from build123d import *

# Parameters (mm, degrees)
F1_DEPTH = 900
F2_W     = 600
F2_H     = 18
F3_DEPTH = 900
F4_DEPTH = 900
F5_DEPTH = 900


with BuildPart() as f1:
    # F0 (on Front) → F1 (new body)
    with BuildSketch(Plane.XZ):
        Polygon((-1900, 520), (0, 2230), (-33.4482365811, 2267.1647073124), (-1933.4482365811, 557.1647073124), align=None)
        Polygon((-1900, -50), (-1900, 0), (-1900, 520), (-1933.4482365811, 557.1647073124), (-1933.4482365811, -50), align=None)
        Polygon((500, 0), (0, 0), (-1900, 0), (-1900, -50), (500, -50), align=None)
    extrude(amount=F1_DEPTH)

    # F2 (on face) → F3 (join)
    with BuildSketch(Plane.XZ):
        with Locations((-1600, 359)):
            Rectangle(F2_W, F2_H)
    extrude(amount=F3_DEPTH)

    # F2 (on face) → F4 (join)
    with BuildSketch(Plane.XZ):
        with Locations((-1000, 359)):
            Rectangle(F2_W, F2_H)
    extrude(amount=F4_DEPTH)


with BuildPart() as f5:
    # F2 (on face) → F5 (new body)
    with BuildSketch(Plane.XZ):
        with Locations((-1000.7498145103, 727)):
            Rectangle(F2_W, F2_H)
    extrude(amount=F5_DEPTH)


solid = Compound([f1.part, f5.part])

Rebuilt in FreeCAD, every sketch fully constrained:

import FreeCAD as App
import Part
import Sketcher

V = App.Vector

doc = App.newDocument("Part")
body = doc.addObject("PartDesign::Body", "Body")

sketch1 = doc.addObject("Sketcher::SketchObject", "Sketch")
body.addObject(sketch1)
sketch1.AttachmentSupport = (doc.XZ_Plane, [""])
sketch1.MapMode = "FlatFace"
sketch1.addGeometry([
    Part.LineSegment(V(-1900, 520, 0), V(0, 2230, 0)),
    Part.LineSegment(V(0, 2230, 0), V(-33, 2267, 0)),
    Part.LineSegment(V(-33, 2267, 0), V(-1933, 557, 0)),
    Part.LineSegment(V(-1933, 557, 0), V(-1933, -50, 0)),
    Part.LineSegment(V(-1933, -50, 0), V(500, -50, 0)),
    Part.LineSegment(V(500, -50, 0), V(500, 0, 0)),
    Part.LineSegment(V(500, 0, 0), V(-1900, 0, 0)),
    Part.LineSegment(V(-1900, 0, 0), V(-1900, 520, 0)),
], False)
sketch1.addConstraint([
    Sketcher.Constraint("Coincident", 0, 2, 1, 1),
    Sketcher.Constraint("Coincident", 1, 2, 2, 1),
    Sketcher.Constraint("Coincident", 2, 2, 3, 1),
    Sketcher.Constraint("Coincident", 3, 2, 4, 1),
    Sketcher.Constraint("Coincident", 4, 2, 5, 1),
    Sketcher.Constraint("Coincident", 5, 2, 6, 1),
    Sketcher.Constraint("Coincident", 6, 2, 7, 1),
    Sketcher.Constraint("Coincident", 7, 2, 0, 1),
    Sketcher.Constraint("Vertical", 3),
    Sketcher.Constraint("Horizontal", 4),
    Sketcher.Constraint("Vertical", 5),
    Sketcher.Constraint("Horizontal", 6),
    Sketcher.Constraint("Vertical", 7),
    Sketcher.Constraint("PointOnObject", 0, 2, -2),
    Sketcher.Constraint("PointOnObject", 5, 2, -1),
    Sketcher.Constraint("Perpendicular", 0, 1),
    Sketcher.Constraint("Perpendicular", 1, 2),
    Sketcher.Constraint("Equal", 0, 2),
    Sketcher.Constraint("DistanceX", 6, 2, 6, 1, 2400.0),
    Sketcher.Constraint("DistanceY", 5, 1, 5, 2, 50.0),
    Sketcher.Constraint("DistanceY", 7, 1, 7, 2, 520.0),
    Sketcher.Constraint("Distance", 1, 50.0),
    Sketcher.Constraint("DistanceY", -1, 1, 0, 2, 2230.0),
    Sketcher.Constraint("DistanceX", -1, 1, 4, 2, 500.0),
])
pad1 = doc.addObject("PartDesign::Pad", "Pad")
body.addObject(pad1)
pad1.Profile = sketch1
pad1.Length = 900

sketch2 = doc.addObject("Sketcher::SketchObject", "Sketch001")
body.addObject(sketch2)
sketch2.AttachmentSupport = (doc.XZ_Plane, [""])
sketch2.MapMode = "FlatFace"
sketch2.addGeometry([
    Part.LineSegment(V(-1900, 368, 0), V(-1900, 350, 0)),
    Part.LineSegment(V(-1900, 350, 0), V(-1300, 350, 0)),
    Part.LineSegment(V(-1300, 350, 0), V(-1300, 368, 0)),
    Part.LineSegment(V(-1300, 368, 0), V(-1900, 368, 0)),
], False)
sketch2.addConstraint([
    Sketcher.Constraint("Coincident", 0, 2, 1, 1),
    Sketcher.Constraint("Coincident", 1, 2, 2, 1),
    Sketcher.Constraint("Coincident", 2, 2, 3, 1),
    Sketcher.Constraint("Coincident", 3, 2, 0, 1),
    Sketcher.Constraint("Vertical", 0),
    Sketcher.Constraint("Horizontal", 1),
    Sketcher.Constraint("Vertical", 2),
    Sketcher.Constraint("Horizontal", 3),
    Sketcher.Constraint("DistanceX", 1, 1, 1, 2, 600.0),
    Sketcher.Constraint("DistanceY", 0, 2, 0, 1, 18.0),
    Sketcher.Constraint("DistanceX", 0, 2, -1, 1, 1900.0),
    Sketcher.Constraint("DistanceY", -1, 1, 0, 2, 350.0),
])
pad2 = doc.addObject("PartDesign::Pad", "Pad001")
body.addObject(pad2)
pad2.Profile = sketch2
pad2.Length = 900

sketch3 = doc.addObject("Sketcher::SketchObject", "Sketch002")
body.addObject(sketch3)
sketch3.AttachmentSupport = (doc.XZ_Plane, [""])
sketch3.MapMode = "FlatFace"
sketch3.addGeometry([
    Part.LineSegment(V(-1300, 368, 0), V(-1300, 350, 0)),
    Part.LineSegment(V(-1300, 350, 0), V(-700, 350, 0)),
    Part.LineSegment(V(-700, 350, 0), V(-700, 368, 0)),
    Part.LineSegment(V(-700, 368, 0), V(-1300, 368, 0)),
], False)
sketch3.addConstraint([
    Sketcher.Constraint("Coincident", 0, 2, 1, 1),
    Sketcher.Constraint("Coincident", 1, 2, 2, 1),
    Sketcher.Constraint("Coincident", 2, 2, 3, 1),
    Sketcher.Constraint("Coincident", 3, 2, 0, 1),
    Sketcher.Constraint("Vertical", 0),
    Sketcher.Constraint("Horizontal", 1),
    Sketcher.Constraint("Vertical", 2),
    Sketcher.Constraint("Horizontal", 3),
    Sketcher.Constraint("DistanceX", 1, 1, 1, 2, 600.0),
    Sketcher.Constraint("DistanceY", 0, 2, 0, 1, 18.0),
    Sketcher.Constraint("DistanceX", 0, 2, -1, 1, 1300.0),
    Sketcher.Constraint("DistanceY", -1, 1, 0, 2, 350.0),
])
pad3 = doc.addObject("PartDesign::Pad", "Pad002")
body.addObject(pad3)
pad3.Profile = sketch3
pad3.Length = 900
body2 = doc.addObject("PartDesign::Body", "Body001")

sketch4 = doc.addObject("Sketcher::SketchObject", "Sketch003")
body2.addObject(sketch4)
sketch4.AttachmentSupport = (doc.getObject("XZ_Plane001"), [""])
sketch4.MapMode = "FlatFace"
sketch4.addGeometry([
    Part.LineSegment(V(-1301, 736, 0), V(-1301, 718, 0)),
    Part.LineSegment(V(-1301, 718, 0), V(-701, 718, 0)),
    Part.LineSegment(V(-701, 718, 0), V(-701, 736, 0)),
    Part.LineSegment(V(-701, 736, 0), V(-1301, 736, 0)),
], False)
sketch4.addConstraint([
    Sketcher.Constraint("Coincident", 0, 2, 1, 1),
    Sketcher.Constraint("Coincident", 1, 2, 2, 1),
    Sketcher.Constraint("Coincident", 2, 2, 3, 1),
    Sketcher.Constraint("Coincident", 3, 2, 0, 1),
    Sketcher.Constraint("Vertical", 0),
    Sketcher.Constraint("Horizontal", 1),
    Sketcher.Constraint("Vertical", 2),
    Sketcher.Constraint("Horizontal", 3),
    Sketcher.Constraint("DistanceX", 1, 1, 1, 2, 600.0),
    Sketcher.Constraint("DistanceY", 0, 2, 0, 1, 18.0),
    Sketcher.Constraint("DistanceY", -1, 1, 0, 2, 718.0),
    Sketcher.Constraint("DistanceX", 0, 2, -1, 1, 1300.749815),
])
pad4 = doc.addObject("PartDesign::Pad", "Pad003")
body2.addObject(pad4)
pad4.Profile = sketch4
pad4.Length = 900

doc.recompute()
